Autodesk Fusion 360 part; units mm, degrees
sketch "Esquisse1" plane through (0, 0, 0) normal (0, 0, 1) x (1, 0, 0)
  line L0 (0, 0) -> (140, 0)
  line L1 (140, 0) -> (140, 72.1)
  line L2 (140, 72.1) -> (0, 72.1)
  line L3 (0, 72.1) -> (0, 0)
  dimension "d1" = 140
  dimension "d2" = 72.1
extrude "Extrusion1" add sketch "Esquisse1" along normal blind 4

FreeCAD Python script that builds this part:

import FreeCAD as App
import Part
import Sketcher
from FreeCAD import Vector

doc = App.newDocument("Part")
params = doc.addObject("Spreadsheet::Sheet", "Params")
for row, (alias, value) in enumerate([
    ("sketch1_width", "140 mm"),
    ("sketch1_height", "72.1 mm"),
    ("pad1_length", "4 mm"),
], start=1):
    params.set(f"A{row}", alias)
    params.set(f"B{row}", "=" + value)
    params.setAlias(f"B{row}", alias)

body = doc.addObject("PartDesign::Body", "Body")

# Sketch on XY plane
sketch1 = body.newObject("Sketcher::SketchObject", "Sketch")
sketch1.AttachmentSupport = (doc.getObject("XY_Plane"), [""])
sketch1.MapMode = "FlatFace"
sketch1.addGeometry(Part.LineSegment(Vector(0, 72.1, 0), Vector(0, 0, 0)), False)
sketch1.addGeometry(Part.LineSegment(Vector(0, 0, 0), Vector(140, 0, 0)), False)
sketch1.addGeometry(Part.LineSegment(Vector(140, 0, 0), Vector(140, 72.1, 0)), False)
sketch1.addGeometry(Part.LineSegment(Vector(140, 72.1, 0), Vector(0, 72.1, 0)), False)
sketch1.addConstraint(Sketcher.Constraint("Coincident", 0, 2, 1, 1))
sketch1.addConstraint(Sketcher.Constraint("Coincident", 1, 2, 2, 1))
sketch1.addConstraint(Sketcher.Constraint("Coincident", 2, 2, 3, 1))
sketch1.addConstraint(Sketcher.Constraint("Coincident", 3, 2, 0, 1))
sketch1.addConstraint(Sketcher.Constraint("Vertical", 0))
sketch1.addConstraint(Sketcher.Constraint("Horizontal", 1))
sketch1.addConstraint(Sketcher.Constraint("Vertical", 2))
sketch1.addConstraint(Sketcher.Constraint("Horizontal", 3))
sketch1.addConstraint(Sketcher.Constraint("Coincident", 0, 2, -1, 1))
sketch1.addConstraint(Sketcher.Constraint("DistanceX", 1, 1, 1, 2, 140.0))
sketch1.addConstraint(Sketcher.Constraint("DistanceY", 0, 2, 0, 1, 72.1))
sketch1.setExpression("Constraints[9]", "Params.sketch1_width")
sketch1.setExpression("Constraints[10]", "Params.sketch1_height")
pad1 = body.newObject("PartDesign::Pad", "Pad")
pad1.Profile = sketch1
pad1.setExpression("Length", "Params.pad1_length")

doc.recompute()
